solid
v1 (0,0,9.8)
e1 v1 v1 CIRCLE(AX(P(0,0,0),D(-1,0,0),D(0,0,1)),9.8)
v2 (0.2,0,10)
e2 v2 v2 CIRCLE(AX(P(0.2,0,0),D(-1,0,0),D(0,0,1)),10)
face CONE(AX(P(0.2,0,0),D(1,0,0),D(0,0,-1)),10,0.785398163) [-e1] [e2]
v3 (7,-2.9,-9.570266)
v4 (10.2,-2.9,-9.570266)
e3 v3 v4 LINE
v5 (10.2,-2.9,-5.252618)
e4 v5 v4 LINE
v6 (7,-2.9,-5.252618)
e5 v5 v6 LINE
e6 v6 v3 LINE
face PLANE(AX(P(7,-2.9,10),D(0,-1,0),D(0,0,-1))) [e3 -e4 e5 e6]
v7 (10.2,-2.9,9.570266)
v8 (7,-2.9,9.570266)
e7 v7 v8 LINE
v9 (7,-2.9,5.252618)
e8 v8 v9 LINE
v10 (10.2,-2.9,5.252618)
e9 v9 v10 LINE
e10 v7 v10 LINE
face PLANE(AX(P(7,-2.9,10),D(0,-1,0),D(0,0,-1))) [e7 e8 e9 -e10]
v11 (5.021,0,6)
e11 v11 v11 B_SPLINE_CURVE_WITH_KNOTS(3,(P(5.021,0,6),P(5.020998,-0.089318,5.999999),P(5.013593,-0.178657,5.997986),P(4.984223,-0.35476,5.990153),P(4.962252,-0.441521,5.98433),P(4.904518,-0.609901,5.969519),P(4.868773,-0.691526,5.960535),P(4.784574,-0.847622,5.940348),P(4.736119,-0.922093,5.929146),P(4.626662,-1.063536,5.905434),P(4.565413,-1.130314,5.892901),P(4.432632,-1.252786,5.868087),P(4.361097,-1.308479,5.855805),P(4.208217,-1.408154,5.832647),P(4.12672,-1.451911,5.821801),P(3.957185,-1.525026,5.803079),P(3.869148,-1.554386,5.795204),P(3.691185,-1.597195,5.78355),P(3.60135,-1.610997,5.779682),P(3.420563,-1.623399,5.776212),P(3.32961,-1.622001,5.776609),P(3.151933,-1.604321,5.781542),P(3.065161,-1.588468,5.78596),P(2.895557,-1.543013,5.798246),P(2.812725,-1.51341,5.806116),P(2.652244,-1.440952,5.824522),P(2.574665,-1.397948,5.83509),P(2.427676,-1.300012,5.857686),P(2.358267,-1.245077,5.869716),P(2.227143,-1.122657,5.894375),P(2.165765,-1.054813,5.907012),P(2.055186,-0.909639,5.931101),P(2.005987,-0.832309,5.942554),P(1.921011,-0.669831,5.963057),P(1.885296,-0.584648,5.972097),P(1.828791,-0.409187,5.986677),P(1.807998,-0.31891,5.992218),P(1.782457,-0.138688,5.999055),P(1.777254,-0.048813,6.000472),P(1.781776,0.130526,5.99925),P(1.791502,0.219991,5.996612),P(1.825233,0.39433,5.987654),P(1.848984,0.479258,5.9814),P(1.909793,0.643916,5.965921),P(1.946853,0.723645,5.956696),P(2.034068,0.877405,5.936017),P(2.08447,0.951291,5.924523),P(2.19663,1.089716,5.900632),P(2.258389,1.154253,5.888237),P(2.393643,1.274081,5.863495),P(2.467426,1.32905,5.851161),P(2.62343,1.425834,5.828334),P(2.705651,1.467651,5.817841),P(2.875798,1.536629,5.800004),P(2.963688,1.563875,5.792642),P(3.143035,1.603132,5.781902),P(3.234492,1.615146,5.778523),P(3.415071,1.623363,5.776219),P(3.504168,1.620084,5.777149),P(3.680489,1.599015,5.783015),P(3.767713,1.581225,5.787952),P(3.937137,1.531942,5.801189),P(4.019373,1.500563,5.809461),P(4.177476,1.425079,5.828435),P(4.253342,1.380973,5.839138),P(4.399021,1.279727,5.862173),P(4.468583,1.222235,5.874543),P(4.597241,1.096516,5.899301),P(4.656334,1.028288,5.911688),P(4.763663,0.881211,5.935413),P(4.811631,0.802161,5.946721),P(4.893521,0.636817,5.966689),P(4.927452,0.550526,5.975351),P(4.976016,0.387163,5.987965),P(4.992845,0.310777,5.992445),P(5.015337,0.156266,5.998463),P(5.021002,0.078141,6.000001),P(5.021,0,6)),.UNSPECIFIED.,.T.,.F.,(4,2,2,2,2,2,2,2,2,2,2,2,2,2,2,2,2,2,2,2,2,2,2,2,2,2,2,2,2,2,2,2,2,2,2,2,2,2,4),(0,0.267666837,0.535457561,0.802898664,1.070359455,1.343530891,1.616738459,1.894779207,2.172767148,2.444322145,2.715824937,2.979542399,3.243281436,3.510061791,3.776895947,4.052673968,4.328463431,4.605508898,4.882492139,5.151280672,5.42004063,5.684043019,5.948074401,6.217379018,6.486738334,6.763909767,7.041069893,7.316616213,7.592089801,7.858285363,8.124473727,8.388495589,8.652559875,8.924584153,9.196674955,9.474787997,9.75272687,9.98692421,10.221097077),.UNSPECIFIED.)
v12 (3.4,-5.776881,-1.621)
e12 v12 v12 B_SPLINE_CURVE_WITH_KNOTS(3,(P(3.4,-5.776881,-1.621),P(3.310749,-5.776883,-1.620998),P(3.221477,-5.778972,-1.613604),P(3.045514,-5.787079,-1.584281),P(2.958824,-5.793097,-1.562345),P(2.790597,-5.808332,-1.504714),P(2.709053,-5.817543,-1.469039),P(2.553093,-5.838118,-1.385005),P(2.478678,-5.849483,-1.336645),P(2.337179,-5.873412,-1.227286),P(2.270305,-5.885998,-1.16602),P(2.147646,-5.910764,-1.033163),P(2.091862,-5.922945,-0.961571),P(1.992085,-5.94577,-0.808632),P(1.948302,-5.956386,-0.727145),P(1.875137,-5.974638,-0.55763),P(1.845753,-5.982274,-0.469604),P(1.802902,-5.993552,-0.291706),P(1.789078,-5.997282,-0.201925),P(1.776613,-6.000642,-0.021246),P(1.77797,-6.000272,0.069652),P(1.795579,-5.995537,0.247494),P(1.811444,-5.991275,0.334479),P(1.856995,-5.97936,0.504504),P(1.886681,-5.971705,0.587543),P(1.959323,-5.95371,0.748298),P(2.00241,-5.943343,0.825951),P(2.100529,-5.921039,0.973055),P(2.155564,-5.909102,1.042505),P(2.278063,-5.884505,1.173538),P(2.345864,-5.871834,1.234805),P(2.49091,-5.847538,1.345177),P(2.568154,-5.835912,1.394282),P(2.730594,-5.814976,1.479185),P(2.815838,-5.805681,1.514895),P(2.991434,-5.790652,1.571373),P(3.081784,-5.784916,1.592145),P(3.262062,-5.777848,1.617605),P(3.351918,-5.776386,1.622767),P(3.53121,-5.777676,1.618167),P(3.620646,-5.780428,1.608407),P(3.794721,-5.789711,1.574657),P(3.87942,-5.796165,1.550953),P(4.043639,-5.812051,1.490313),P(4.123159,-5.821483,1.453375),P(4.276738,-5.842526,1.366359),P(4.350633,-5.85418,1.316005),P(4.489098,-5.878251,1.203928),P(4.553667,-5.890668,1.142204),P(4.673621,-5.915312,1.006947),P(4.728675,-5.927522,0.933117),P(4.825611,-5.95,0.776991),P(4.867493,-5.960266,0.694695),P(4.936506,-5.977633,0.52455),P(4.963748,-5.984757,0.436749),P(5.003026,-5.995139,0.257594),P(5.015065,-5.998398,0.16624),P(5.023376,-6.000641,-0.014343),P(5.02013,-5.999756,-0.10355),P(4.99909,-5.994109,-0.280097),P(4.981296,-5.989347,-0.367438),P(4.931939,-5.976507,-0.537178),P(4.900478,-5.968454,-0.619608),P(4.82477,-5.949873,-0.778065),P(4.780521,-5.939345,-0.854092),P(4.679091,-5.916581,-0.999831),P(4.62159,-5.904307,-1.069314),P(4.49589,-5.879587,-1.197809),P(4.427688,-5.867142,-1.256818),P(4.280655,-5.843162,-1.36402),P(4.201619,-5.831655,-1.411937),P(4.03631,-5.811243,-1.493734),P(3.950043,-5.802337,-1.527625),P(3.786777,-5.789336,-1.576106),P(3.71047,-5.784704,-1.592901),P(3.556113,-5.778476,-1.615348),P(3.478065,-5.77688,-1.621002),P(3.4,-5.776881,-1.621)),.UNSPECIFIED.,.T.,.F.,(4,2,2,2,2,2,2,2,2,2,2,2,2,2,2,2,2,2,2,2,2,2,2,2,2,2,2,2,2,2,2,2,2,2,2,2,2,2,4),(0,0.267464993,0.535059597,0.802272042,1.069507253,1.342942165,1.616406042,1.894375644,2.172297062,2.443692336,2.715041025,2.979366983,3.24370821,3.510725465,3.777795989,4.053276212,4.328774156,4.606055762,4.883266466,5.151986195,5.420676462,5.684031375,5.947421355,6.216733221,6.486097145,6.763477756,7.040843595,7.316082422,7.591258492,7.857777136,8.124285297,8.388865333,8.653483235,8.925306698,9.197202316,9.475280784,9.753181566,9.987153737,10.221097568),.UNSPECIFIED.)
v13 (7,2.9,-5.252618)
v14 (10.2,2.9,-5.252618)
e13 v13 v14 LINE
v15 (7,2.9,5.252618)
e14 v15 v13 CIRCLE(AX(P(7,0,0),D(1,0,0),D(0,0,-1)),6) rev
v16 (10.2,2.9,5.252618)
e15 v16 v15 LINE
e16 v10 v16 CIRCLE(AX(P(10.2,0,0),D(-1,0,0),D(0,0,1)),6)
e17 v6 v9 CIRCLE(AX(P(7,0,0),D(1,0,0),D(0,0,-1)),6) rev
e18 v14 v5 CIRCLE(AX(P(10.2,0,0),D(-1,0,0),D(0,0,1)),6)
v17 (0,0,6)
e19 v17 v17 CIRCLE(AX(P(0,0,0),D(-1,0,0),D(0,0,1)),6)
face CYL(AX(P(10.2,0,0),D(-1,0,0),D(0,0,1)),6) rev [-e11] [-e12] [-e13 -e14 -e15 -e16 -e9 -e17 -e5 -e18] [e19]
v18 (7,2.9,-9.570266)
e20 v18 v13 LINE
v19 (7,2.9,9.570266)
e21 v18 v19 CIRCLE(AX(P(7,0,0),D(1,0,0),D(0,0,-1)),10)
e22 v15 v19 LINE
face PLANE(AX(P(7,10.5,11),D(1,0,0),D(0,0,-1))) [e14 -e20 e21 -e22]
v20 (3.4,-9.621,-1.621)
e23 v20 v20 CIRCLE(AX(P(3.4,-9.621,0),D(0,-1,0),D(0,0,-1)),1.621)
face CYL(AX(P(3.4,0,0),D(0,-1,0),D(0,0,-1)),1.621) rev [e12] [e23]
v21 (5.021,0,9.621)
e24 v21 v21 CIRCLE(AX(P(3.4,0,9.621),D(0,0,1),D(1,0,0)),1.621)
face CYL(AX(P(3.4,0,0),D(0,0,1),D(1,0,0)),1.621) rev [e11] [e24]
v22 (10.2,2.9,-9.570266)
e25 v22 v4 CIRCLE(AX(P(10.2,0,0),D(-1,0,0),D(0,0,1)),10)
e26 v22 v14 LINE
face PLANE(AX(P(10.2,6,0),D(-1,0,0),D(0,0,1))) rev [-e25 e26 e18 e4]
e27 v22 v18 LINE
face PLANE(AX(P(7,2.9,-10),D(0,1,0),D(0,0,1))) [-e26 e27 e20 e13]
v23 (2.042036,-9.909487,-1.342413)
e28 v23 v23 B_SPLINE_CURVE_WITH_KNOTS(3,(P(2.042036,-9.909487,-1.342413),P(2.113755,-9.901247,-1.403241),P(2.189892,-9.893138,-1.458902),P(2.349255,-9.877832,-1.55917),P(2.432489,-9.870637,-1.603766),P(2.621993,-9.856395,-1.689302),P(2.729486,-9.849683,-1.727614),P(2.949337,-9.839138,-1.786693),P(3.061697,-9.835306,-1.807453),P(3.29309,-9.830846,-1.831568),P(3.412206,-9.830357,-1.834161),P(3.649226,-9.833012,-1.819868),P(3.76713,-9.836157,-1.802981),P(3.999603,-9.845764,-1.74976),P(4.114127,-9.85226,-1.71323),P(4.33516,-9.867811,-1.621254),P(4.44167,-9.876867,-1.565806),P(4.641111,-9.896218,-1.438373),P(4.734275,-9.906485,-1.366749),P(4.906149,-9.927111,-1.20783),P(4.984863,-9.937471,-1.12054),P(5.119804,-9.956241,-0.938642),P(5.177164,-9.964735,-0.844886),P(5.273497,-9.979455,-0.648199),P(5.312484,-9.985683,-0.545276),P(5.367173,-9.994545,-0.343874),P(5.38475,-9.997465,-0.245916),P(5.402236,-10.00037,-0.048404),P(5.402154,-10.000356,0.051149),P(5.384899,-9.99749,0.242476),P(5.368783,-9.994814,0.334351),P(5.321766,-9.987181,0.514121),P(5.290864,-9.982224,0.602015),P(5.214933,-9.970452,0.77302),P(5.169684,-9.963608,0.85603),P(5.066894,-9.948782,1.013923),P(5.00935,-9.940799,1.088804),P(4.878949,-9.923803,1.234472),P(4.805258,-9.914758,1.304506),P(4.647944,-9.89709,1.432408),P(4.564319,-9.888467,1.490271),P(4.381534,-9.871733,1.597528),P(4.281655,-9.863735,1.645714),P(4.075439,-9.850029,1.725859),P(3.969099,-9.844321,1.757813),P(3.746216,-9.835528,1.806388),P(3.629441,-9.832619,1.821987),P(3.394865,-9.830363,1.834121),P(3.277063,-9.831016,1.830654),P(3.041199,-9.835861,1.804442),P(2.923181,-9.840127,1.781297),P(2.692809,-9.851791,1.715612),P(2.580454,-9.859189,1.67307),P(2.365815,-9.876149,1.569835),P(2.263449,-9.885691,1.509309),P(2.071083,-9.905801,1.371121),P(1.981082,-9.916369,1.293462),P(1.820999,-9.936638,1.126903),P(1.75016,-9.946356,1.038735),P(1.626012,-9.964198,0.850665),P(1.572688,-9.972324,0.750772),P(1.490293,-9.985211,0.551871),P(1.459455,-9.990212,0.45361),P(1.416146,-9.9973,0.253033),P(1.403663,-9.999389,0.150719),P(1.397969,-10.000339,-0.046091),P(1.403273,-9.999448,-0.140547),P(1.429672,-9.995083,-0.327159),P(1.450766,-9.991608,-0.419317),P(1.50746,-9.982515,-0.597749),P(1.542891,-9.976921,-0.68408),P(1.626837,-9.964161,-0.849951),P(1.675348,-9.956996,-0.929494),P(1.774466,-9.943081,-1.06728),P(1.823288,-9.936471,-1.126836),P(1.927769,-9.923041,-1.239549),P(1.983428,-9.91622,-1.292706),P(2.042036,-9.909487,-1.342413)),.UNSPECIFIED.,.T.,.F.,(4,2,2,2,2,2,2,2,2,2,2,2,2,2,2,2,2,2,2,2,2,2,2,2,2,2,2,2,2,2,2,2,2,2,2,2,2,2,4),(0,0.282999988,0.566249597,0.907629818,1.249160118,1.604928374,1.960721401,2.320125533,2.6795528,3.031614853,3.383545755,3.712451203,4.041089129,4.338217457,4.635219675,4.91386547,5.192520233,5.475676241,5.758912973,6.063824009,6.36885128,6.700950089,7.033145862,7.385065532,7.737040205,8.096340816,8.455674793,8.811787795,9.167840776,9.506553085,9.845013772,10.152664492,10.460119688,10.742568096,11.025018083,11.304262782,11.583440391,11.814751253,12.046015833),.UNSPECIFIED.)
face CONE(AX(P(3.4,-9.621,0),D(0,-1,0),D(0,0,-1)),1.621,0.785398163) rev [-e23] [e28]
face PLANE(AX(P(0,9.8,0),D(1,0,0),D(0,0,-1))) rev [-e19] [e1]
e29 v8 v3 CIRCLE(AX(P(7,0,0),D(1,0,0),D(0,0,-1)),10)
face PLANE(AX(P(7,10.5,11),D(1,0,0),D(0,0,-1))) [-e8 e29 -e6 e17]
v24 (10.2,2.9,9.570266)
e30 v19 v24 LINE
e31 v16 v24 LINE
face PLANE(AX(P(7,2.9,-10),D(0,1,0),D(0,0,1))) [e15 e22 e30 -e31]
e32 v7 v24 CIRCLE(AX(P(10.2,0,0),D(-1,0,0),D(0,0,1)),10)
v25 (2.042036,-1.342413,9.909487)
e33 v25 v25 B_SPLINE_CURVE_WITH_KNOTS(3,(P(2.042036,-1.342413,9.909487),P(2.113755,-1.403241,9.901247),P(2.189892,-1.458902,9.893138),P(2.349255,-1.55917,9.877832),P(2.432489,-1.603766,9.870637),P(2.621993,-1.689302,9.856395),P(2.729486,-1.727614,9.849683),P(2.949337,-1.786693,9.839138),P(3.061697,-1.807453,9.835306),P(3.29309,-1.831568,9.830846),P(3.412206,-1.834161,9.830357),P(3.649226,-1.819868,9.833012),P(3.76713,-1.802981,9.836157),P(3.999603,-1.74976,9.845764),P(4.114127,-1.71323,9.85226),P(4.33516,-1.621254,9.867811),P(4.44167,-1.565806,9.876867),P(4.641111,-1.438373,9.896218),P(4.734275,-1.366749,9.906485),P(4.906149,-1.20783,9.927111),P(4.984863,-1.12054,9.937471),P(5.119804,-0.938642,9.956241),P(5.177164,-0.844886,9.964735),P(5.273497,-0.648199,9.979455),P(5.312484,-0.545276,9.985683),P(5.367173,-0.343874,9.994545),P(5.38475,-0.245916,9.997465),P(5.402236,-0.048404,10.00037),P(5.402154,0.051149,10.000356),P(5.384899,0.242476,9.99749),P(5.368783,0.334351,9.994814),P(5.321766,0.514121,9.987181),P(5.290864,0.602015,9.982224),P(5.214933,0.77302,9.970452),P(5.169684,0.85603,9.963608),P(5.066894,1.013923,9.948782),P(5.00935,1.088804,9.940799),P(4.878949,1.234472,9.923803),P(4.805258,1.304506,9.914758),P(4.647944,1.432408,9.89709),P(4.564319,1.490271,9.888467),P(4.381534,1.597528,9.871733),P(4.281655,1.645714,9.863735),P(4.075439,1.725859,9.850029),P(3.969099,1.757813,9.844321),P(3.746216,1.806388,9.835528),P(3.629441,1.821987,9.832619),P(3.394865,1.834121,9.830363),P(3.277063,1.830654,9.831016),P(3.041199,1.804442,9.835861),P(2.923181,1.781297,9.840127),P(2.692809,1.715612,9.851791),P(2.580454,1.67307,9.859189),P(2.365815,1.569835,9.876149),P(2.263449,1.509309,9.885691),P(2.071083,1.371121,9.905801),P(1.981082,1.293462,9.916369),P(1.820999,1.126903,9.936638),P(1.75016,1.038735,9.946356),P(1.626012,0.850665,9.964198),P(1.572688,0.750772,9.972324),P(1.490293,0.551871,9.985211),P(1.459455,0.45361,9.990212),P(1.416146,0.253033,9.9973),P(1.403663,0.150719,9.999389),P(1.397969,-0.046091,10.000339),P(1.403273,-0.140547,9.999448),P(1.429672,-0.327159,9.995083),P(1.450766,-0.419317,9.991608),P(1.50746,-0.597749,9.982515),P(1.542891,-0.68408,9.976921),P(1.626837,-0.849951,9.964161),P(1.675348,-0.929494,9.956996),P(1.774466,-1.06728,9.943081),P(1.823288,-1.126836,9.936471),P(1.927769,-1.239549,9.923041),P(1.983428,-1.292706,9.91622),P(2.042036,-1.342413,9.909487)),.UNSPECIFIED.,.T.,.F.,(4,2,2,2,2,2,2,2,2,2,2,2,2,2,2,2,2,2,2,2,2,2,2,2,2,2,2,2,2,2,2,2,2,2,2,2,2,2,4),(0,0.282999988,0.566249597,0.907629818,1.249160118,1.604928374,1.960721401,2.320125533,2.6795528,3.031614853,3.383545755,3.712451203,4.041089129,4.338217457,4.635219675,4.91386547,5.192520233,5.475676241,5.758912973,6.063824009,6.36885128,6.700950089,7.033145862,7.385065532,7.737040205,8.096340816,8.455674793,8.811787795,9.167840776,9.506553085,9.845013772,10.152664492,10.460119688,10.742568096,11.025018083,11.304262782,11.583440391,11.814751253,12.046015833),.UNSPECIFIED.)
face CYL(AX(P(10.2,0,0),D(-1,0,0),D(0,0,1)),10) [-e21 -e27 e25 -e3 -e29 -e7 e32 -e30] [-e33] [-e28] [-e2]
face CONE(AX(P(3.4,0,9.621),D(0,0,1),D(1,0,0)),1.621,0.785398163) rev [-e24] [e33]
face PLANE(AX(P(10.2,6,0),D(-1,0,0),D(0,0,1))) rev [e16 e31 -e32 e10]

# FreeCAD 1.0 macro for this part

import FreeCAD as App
import Part
import Sketcher
from FreeCAD import Vector
Q = App.Units.Quantity


def add_polygon(sketch, points):
    """Adds a closed chain of lines whose ends are joined by coincident constraints."""
    first, n = sketch.GeometryCount, len(points)
    for a, b in zip(points, points[1:] + points[:1]):
        sketch.addGeometry(Part.LineSegment(App.Vector(*a, 0), App.Vector(*b, 0)), False)
    for i in range(n):
        sketch.addConstraint(Sketcher.Constraint("Coincident", first + i, 2, first + (i + 1) % n, 1))

doc = App.newDocument("Part")
body = doc.addObject("PartDesign::Body", "Body")

# Sketch on XY plane
sketch1 = body.newObject("Sketcher::SketchObject", "Sketch")
sketch1.AttachmentSupport = (doc.getObject("XY_Plane"), [""])
sketch1.MapMode = "FlatFace"
add_polygon(sketch1, [(0, 9.8), (0, 6), (10.2, 6), (10.2, 10), (0.2, 10)])  # lines 0-4
sketch1.addConstraint(Sketcher.Constraint("Vertical", 0))
sketch1.addConstraint(Sketcher.Constraint("Horizontal", 1))
sketch1.addConstraint(Sketcher.Constraint("Vertical", 2))
sketch1.addConstraint(Sketcher.Constraint("Horizontal", 3))
sketch1.addConstraint(Sketcher.Constraint("PointOnObject", 0, 2, -2))
sketch1.addConstraint(Sketcher.Constraint("DistanceX", 3, 2, 3, 1, Q("10 mm")))
sketch1.addConstraint(Sketcher.Constraint("DistanceY", 2, 1, 2, 2, Q("4 mm")))
sketch1.addConstraint(Sketcher.Constraint("Angle", 4, Q("-135 deg")))
sketch1.addConstraint(Sketcher.Constraint("DistanceX", 1, 1, 1, 2, Q("10.2 mm")))
sketch1.addConstraint(Sketcher.Constraint("DistanceY", -1, 1, 0, 2, Q("6 mm")))
revolution = body.newObject("PartDesign::Revolution", "Revolution")
revolution.Profile = sketch1
revolution.ReferenceAxis = (sketch1, ["H_Axis"])
revolution.Angle = 360

# Sketch on YZ plane
sketch2 = body.newObject("Sketcher::SketchObject", "Sketch001")
sketch2.AttachmentSupport = (doc.getObject("YZ_Plane"), [""])
sketch2.MapMode = "FlatFace"
sketch2.AttachmentOffset = App.Placement(Vector(0, 0, 10.2), App.Rotation())
add_polygon(sketch2, [(10, 11), (-10, 11), (-10, -11), (10, -11)])  # lines 0-3
add_polygon(sketch2, [(-3, -10), (-3, 10), (3, 10), (3, -10)])  # lines 4-7
sketch2.addConstraint(Sketcher.Constraint("Horizontal", 0))
sketch2.addConstraint(Sketcher.Constraint("Vertical", 1))
sketch2.addConstraint(Sketcher.Constraint("Horizontal", 2))
sketch2.addConstraint(Sketcher.Constraint("Vertical", 3))
sketch2.addConstraint(Sketcher.Constraint("Vertical", 4))
sketch2.addConstraint(Sketcher.Constraint("Horizontal", 5))
sketch2.addConstraint(Sketcher.Constraint("Vertical", 6))
sketch2.addConstraint(Sketcher.Constraint("Horizontal", 7))
sketch2.addConstraint(Sketcher.Constraint("Symmetric", 0, 2, 2, 2, -1, 1))
sketch2.addConstraint(Sketcher.Constraint("Symmetric", 4, 2, 6, 2, -1, 1))
sketch2.addConstraint(Sketcher.Constraint("DistanceX", 0, 2, 0, 1, Q("21 mm")))
sketch2.addConstraint(Sketcher.Constraint("DistanceY", 1, 2, 1, 1, Q("22 mm")))
sketch2.addConstraint(Sketcher.Constraint("DistanceY", 4, 1, 4, 2, Q("20 mm")))
sketch2.addConstraint(Sketcher.Constraint("DistanceX", 5, 1, 5, 2, Q("5.8 mm")))
pocket1 = body.newObject("PartDesign::Pocket", "Pocket")
pocket1.Profile = sketch2
pocket1.Length = 3.2

# Sketch on YZ plane
sketch3 = body.newObject("Sketcher::SketchObject", "Sketch002")
sketch3.AttachmentSupport = (doc.getObject("YZ_Plane"), [""])
sketch3.MapMode = "FlatFace"
sketch3.AttachmentOffset = App.Placement(Vector(0, 0, 3.4), App.Rotation())
add_polygon(sketch3, [(2, 10), (0, 10), (0, 0), (1.6, 0), (1.6, 9.6)])  # lines 0-4
sketch3.addConstraint(Sketcher.Constraint("Horizontal", 0))
sketch3.addConstraint(Sketcher.Constraint("Vertical", 1))
sketch3.addConstraint(Sketcher.Constraint("Horizontal", 2))
sketch3.addConstraint(Sketcher.Constraint("Vertical", 3))
sketch3.addConstraint(Sketcher.Constraint("Coincident", 1, 2, -1, 1))
sketch3.addConstraint(Sketcher.Constraint("DistanceX", 0, 2, 0, 1, Q("2 mm")))
sketch3.addConstraint(Sketcher.Constraint("DistanceY", 1, 2, 1, 1, Q("10 mm")))
sketch3.addConstraint(Sketcher.Constraint("Angle", 4, Q("45 deg")))
sketch3.addConstraint(Sketcher.Constraint("DistanceX", 2, 1, 2, 2, Q("1.621 mm")))
groove = body.newObject("PartDesign::Groove", "Groove")
groove.Profile = sketch3
groove.ReferenceAxis = (sketch3, ["V_Axis"])
groove.Angle = 360

# Sketch on YZ plane
sketch4 = body.newObject("Sketcher::SketchObject", "Sketch003")
sketch4.AttachmentSupport = (doc.getObject("YZ_Plane"), [""])
sketch4.MapMode = "FlatFace"
sketch4.AttachmentOffset = App.Placement(Vector(0, 0, 3.4), App.Rotation())
add_polygon(sketch4, [(-10, 2), (-10, 0), (0, 0), (0, 1.6), (-9.6, 1.6)])  # lines 0-4
sketch4.addConstraint(Sketcher.Constraint("Vertical", 0))
sketch4.addConstraint(Sketcher.Constraint("Horizontal", 1))
sketch4.addConstraint(Sketcher.Constraint("Vertical", 2))
sketch4.addConstraint(Sketcher.Constraint("Horizontal", 3))
sketch4.addConstraint(Sketcher.Constraint("Coincident", 1, 2, -1, 1))
sketch4.addConstraint(Sketcher.Constraint("DistanceX", 1, 1, 1, 2, Q("10 mm")))
sketch4.addConstraint(Sketcher.Constraint("DistanceY", 0, 2, 0, 1, Q("2 mm")))
sketch4.addConstraint(Sketcher.Constraint("Angle", 4, Q("135 deg")))
sketch4.addConstraint(Sketcher.Constraint("DistanceX", 3, 2, 3, 1, Q("9.621 mm")))
groove2 = body.newObject("PartDesign::Groove", "Groove001")
groove2.Profile = sketch4
groove2.ReferenceAxis = (sketch4, ["H_Axis"])
groove2.Angle = 360

doc.recompute()
